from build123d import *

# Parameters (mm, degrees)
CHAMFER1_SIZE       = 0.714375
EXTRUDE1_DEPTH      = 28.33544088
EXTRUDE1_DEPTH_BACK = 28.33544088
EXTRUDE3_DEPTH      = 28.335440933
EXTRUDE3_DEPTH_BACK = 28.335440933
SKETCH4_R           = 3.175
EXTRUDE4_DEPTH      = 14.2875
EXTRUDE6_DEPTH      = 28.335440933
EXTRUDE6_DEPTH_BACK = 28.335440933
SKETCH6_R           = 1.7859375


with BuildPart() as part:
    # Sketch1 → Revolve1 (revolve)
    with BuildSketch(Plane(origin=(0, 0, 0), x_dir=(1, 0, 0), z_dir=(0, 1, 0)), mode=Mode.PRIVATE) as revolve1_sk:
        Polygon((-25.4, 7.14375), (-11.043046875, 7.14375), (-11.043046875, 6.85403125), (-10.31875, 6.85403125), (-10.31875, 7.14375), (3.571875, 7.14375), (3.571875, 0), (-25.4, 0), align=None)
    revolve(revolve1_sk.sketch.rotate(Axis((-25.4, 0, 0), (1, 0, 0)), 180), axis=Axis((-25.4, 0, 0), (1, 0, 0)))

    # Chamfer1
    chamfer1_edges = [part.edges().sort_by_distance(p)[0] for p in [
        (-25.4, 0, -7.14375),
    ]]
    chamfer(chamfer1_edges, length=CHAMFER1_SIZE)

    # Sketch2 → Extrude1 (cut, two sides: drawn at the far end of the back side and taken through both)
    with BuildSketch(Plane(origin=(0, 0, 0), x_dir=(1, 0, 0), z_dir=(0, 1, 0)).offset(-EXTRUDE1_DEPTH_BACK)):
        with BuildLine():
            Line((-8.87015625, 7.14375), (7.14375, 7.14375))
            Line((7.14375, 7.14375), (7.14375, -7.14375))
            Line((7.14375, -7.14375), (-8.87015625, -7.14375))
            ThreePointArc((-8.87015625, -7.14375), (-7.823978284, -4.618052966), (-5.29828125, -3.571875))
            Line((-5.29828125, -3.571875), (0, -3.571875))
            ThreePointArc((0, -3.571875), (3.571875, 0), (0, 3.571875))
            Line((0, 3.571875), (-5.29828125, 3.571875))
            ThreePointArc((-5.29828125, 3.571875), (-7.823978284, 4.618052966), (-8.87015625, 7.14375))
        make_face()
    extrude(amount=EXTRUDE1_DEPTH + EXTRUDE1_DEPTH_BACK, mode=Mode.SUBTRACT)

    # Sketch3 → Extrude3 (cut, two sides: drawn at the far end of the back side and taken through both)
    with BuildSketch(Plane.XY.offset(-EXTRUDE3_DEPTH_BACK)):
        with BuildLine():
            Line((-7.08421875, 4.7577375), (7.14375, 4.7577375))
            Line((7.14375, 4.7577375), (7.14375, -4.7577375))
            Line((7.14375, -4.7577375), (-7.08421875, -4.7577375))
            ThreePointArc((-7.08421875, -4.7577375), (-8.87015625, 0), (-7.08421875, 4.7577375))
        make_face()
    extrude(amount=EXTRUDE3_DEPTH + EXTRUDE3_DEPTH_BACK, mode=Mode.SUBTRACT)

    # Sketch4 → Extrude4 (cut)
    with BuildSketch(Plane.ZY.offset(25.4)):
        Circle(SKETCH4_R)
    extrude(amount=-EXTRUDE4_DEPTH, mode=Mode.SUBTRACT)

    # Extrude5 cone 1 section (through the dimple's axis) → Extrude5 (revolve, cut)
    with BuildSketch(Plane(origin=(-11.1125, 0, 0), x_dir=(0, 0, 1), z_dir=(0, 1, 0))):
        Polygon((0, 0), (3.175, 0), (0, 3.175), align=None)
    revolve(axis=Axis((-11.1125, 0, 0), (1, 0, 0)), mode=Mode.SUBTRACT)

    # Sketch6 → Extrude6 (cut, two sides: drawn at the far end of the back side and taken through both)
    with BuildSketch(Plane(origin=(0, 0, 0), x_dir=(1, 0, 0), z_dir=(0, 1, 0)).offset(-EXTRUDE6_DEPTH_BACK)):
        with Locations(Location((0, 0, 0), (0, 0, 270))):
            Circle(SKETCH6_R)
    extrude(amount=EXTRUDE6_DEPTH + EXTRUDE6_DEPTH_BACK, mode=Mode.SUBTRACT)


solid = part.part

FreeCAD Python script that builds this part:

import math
import FreeCAD as App
import Part
import Sketcher
from FreeCAD import Vector
Q = App.Units.Quantity


def edges_at(feature, points):
    """Names of the edges that pass closest to the given points."""
    edges = feature.Shape.Edges
    near = lambda p: min(range(len(edges)), key=lambda i: edges[i].distToShape(Part.Vertex(*p))[0])
    return sorted({f"Edge{near(p) + 1}" for p in points})

doc = App.newDocument("Part")
body = doc.addObject("PartDesign::Body", "Body")

# Sketch on XZ plane
sketch1 = doc.addObject("Sketcher::SketchObject", "Sketch")
body.addObject(sketch1)
sketch1.AttachmentSupport = (doc.XZ_Plane, [""])
sketch1.MapMode = "FlatFace"
sketch1.addGeometry(Part.LineSegment(Vector(-11.04, -7.14, 0), Vector(-25.4, -7.14, 0)), False)
sketch1.addGeometry(Part.LineSegment(Vector(-25.4, -7.14, 0), Vector(-25.4, 0, 0)), False)
sketch1.addGeometry(Part.LineSegment(Vector(-25.4, 0, 0), Vector(3.57, 0, 0)), False)
sketch1.addGeometry(Part.LineSegment(Vector(3.57, 0, 0), Vector(3.57, -7.14, 0)), False)
sketch1.addGeometry(Part.LineSegment(Vector(3.57, -7.14, 0), Vector(-10.32, -7.14, 0)), False)
sketch1.addGeometry(Part.LineSegment(Vector(-10.32, -7.14, 0), Vector(-10.32, -6.85, 0)), False)
sketch1.addGeometry(Part.LineSegment(Vector(-10.32, -6.85, 0), Vector(-11.04, -6.85, 0)), False)
sketch1.addGeometry(Part.LineSegment(Vector(-11.04, -6.85, 0), Vector(-11.04, -7.14, 0)), False)
sketch1.addConstraint(Sketcher.Constraint("Coincident", 0, 2, 1, 1))
sketch1.addConstraint(Sketcher.Constraint("Coincident", 1, 2, 2, 1))
sketch1.addConstraint(Sketcher.Constraint("Coincident", 2, 2, 3, 1))
sketch1.addConstraint(Sketcher.Constraint("Coincident", 3, 2, 4, 1))
sketch1.addConstraint(Sketcher.Constraint("Coincident", 4, 2, 5, 1))
sketch1.addConstraint(Sketcher.Constraint("Coincident", 5, 2, 6, 1))
sketch1.addConstraint(Sketcher.Constraint("Coincident", 6, 2, 7, 1))
sketch1.addConstraint(Sketcher.Constraint("Coincident", 7, 2, 0, 1))
sketch1.addConstraint(Sketcher.Constraint("Horizontal", 0))
sketch1.addConstraint(Sketcher.Constraint("Vertical", 1))
sketch1.addConstraint(Sketcher.Constraint("Horizontal", 2))
sketch1.addConstraint(Sketcher.Constraint("Vertical", 3))
sketch1.addConstraint(Sketcher.Constraint("Horizontal", 4))
sketch1.addConstraint(Sketcher.Constraint("Vertical", 5))
sketch1.addConstraint(Sketcher.Constraint("Horizontal", 6))
sketch1.addConstraint(Sketcher.Constraint("Vertical", 7))
sketch1.addConstraint(Sketcher.Constraint("PointOnObject", 1, 2, -1))
sketch1.addConstraint(Sketcher.Constraint("Horizontal", 0, 2, 3, 2))
sketch1.addConstraint(Sketcher.Constraint("DistanceX", 0, 2, -1, 1, Q("1 in")))
sketch1.addConstraint(Sketcher.Constraint("DistanceX", 2, 1, 2, 2, Q("1.140625 in")))
sketch1.addConstraint(Sketcher.Constraint("DistanceX", 4, 2, 4, 1, Q("0.546875 in")))
sketch1.addConstraint(Sketcher.Constraint("DistanceY", 1, 1, 1, 2, Q("0.28125 in")))
sketch1.addConstraint(Sketcher.Constraint("DistanceY", 5, 1, 5, 2, Q("0.289719 mm")))
sketch1.addConstraint(Sketcher.Constraint("DistanceX", 0, 2, 0, 1, Q("14.356953 mm")))
revolution = doc.addObject("PartDesign::Revolution", "Revolution")
body.addObject(revolution)
revolution.Profile = sketch1
revolution.ReferenceAxis = (sketch1, ["H_Axis"])
revolution.Angle = 360
doc.recompute()

chamfer = doc.addObject("PartDesign::Chamfer", "Chamfer")
body.addObject(chamfer)
chamfer.Base = (revolution, edges_at(revolution, [(-25.4, 0, -7.144)]))
chamfer.Size = 0.714375

# Sketch on XZ plane
sketch2 = doc.addObject("Sketcher::SketchObject", "Sketch001")
body.addObject(sketch2)
sketch2.AttachmentSupport = (doc.XZ_Plane, [""])
sketch2.MapMode = "FlatFace"
sketch2.addGeometry(Part.LineSegment(Vector(7.1, -7.1, 0), Vector(-8.9, -7.1, 0)), False)
sketch2.addGeometry(Part.ArcOfCircle(Part.Circle(Vector(-5.3, -7.1, 0), Vector(0, 0, 1), 3.6), math.radians(90), math.radians(180)), False)
sketch2.addGeometry(Part.LineSegment(Vector(-5.3, -3.6, 0), Vector(0, -3.6, 0)), False)
sketch2.addGeometry(Part.ArcOfCircle(Part.Circle(Vector(0, 0, 0), Vector(0, 0, 1), 3.6), math.radians(-90), math.radians(90)), False)
sketch2.addGeometry(Part.LineSegment(Vector(0, 3.6, 0), Vector(-5.3, 3.6, 0)), False)
sketch2.addGeometry(Part.ArcOfCircle(Part.Circle(Vector(-5.3, 7.1, 0), Vector(0, 0, 1), 3.6), math.radians(180), math.radians(270)), False)
sketch2.addGeometry(Part.LineSegment(Vector(-8.9, 7.1, 0), Vector(7.1, 7.1, 0)), False)
sketch2.addGeometry(Part.LineSegment(Vector(7.1, 7.1, 0), Vector(7.1, -7.1, 0)), False)
sketch2.addConstraint(Sketcher.Constraint("Coincident", 0, 2, 1, 2))
sketch2.addConstraint(Sketcher.Constraint("Tangent", 1, 1, 2, 1))
sketch2.addConstraint(Sketcher.Constraint("Tangent", 2, 2, 3, 1))
sketch2.addConstraint(Sketcher.Constraint("Tangent", 3, 2, 4, 1))
sketch2.addConstraint(Sketcher.Constraint("Tangent", 4, 2, 5, 2))
sketch2.addConstraint(Sketcher.Constraint("Coincident", 5, 1, 6, 1))
sketch2.addConstraint(Sketcher.Constraint("Coincident", 6, 2, 7, 1))
sketch2.addConstraint(Sketcher.Constraint("Coincident", 7, 2, 0, 1))
sketch2.addConstraint(Sketcher.Constraint("Horizontal", 0))
sketch2.addConstraint(Sketcher.Constraint("Horizontal", 2))
sketch2.addConstraint(Sketcher.Constraint("Horizontal", 4))
sketch2.addConstraint(Sketcher.Constraint("Horizontal", 6))
sketch2.addConstraint(Sketcher.Constraint("Vertical", 7))
sketch2.addConstraint(Sketcher.Constraint("Coincident", 3, 3, -1, 1))
sketch2.addConstraint(Sketcher.Constraint("Equal", 1, 3))
sketch2.addConstraint(Sketcher.Constraint("Equal", 3, 5))
sketch2.addConstraint(Sketcher.Constraint("Symmetric", 0, 2, 5, 1, -1))
sketch2.addConstraint(Sketcher.Constraint("Horizontal", 1, 3, 0, 2))
sketch2.addConstraint(Sketcher.Constraint("Radius", 1, Q("0.140625 in")))
sketch2.addConstraint(Sketcher.Constraint("DistanceX", -1, 1, 6, 2, Q("0.28125 in")))
sketch2.addConstraint(Sketcher.Constraint("DistanceX", 2, 1, 2, 2, Q("5.298281 mm")))
pocket1 = doc.addObject("PartDesign::Pocket", "Pocket")
body.addObject(pocket1)
pocket1.Profile = sketch2
pocket1.Type = "ThroughAll"
pocket1.Midplane = True

# Sketch on XY plane
sketch3 = doc.addObject("Sketcher::SketchObject", "Sketch002")
body.addObject(sketch3)
sketch3.AttachmentSupport = (doc.XY_Plane, [""])
sketch3.MapMode = "FlatFace"
sketch3.addGeometry(Part.LineSegment(Vector(7, 5, 0), Vector(-7, 5, 0)), False)
sketch3.addGeometry(Part.ArcOfCircle(Part.Circle(Vector(-2, 0, 0), Vector(0, 0, 1), 7), math.radians(139), math.radians(221)), False)
sketch3.addGeometry(Part.LineSegment(Vector(-7, -5, 0), Vector(7, -5, 0)), False)
sketch3.addGeometry(Part.LineSegment(Vector(7, -5, 0), Vector(7, 5, 0)), False)
sketch3.addConstraint(Sketcher.Constraint("Coincident", 0, 2, 1, 1))
sketch3.addConstraint(Sketcher.Constraint("Coincident", 1, 2, 2, 1))
sketch3.addConstraint(Sketcher.Constraint("Coincident", 2, 2, 3, 1))
sketch3.addConstraint(Sketcher.Constraint("Coincident", 3, 2, 0, 1))
sketch3.addConstraint(Sketcher.Constraint("Horizontal", 0))
sketch3.addConstraint(Sketcher.Constraint("Horizontal", 2))
sketch3.addConstraint(Sketcher.Constraint("Vertical", 3))
sketch3.addConstraint(Sketcher.Constraint("Symmetric", 0, 2, 1, 2, -1))
sketch3.addConstraint(Sketcher.Constraint("DistanceX", -1, 1, 2, 2, Q("0.28125 in")))
sketch3.addConstraint(Sketcher.Constraint("Radius", 1, Q("7.230275 mm")))
sketch3.addConstraint(Sketcher.Constraint("DistanceX", 0, 2, 0, 1, Q("14.227969 mm")))
sketch3.addConstraint(Sketcher.Constraint("DistanceY", 3, 1, 3, 2, Q("9.515475 mm")))
pocket2 = doc.addObject("PartDesign::Pocket", "Pocket001")
body.addObject(pocket2)
pocket2.Profile = sketch3
pocket2.Type = "ThroughAll"
pocket2.Midplane = True

# Sketch on YZ plane
sketch4 = doc.addObject("Sketcher::SketchObject", "Sketch003")
body.addObject(sketch4)
sketch4.AttachmentSupport = (doc.YZ_Plane, [""])
sketch4.MapMode = "FlatFace"
sketch4.AttachmentOffset = App.Placement(Vector(0, 0, -1 * 25.4), App.Rotation())
sketch4.addGeometry(Part.Circle(Vector(0, 0, 0), Vector(0, 0, 1), 3.2), False)
sketch4.addConstraint(Sketcher.Constraint("Coincident", 0, 3, -1, 1))
sketch4.addConstraint(Sketcher.Constraint("Diameter", 0, Q("0.25 in")))
pocket3 = doc.addObject("PartDesign::Pocket", "Pocket002")
body.addObject(pocket3)
pocket3.Profile = sketch4
pocket3.Length = Q("0.5625 in")
pocket3.Reversed = True

# Sketch on XZ plane
sketch5 = doc.addObject("Sketcher::SketchObject", "Sketch004")
body.addObject(sketch5)
sketch5.AttachmentSupport = (doc.XZ_Plane, [""])
sketch5.MapMode = "FlatFace"
sketch5.addGeometry(Part.LineSegment(Vector(-11.1, 0, 0), Vector(-11.1, 3.2, 0)), False)
sketch5.addGeometry(Part.LineSegment(Vector(-11.1, 3.2, 0), Vector(-7.9, 0, 0)), False)
sketch5.addGeometry(Part.LineSegment(Vector(-7.9, 0, 0), Vector(-11.1, 0, 0)), False)
sketch5.addConstraint(Sketcher.Constraint("Coincident", 0, 2, 1, 1))
sketch5.addConstraint(Sketcher.Constraint("Coincident", 1, 2, 2, 1))
sketch5.addConstraint(Sketcher.Constraint("Coincident", 2, 2, 0, 1))
sketch5.addConstraint(Sketcher.Constraint("Vertical", 0))
sketch5.addConstraint(Sketcher.Constraint("Horizontal", 2))
sketch5.addConstraint(Sketcher.Constraint("PointOnObject", 1, 2, -1))
sketch5.addConstraint(Sketcher.Constraint("Equal", 2, 0))
sketch5.addConstraint(Sketcher.Constraint("DistanceX", 2, 2, 2, 1, Q("0.125 in")))
sketch5.addConstraint(Sketcher.Constraint("DistanceX", 0, 2, -1, 1, Q("0.4375 in")))
groove = doc.addObject("PartDesign::Groove", "Groove")
body.addObject(groove)
groove.Profile = sketch5
groove.ReferenceAxis = (sketch5, ["H_Axis"])
groove.Angle = 360

# Sketch on XZ plane
sketch6 = doc.addObject("Sketcher::SketchObject", "Sketch005")
body.addObject(sketch6)
sketch6.AttachmentSupport = (doc.XZ_Plane, [""])
sketch6.MapMode = "FlatFace"
sketch6.addGeometry(Part.Circle(Vector(0, 0, 0), Vector(0, 0, 1), 1.8), False)
sketch6.addConstraint(Sketcher.Constraint("Coincident", 0, 3, -1, 1))
sketch6.addConstraint(Sketcher.Constraint("Diameter", 0, Q("0.140625 in")))
pocket4 = doc.addObject("PartDesign::Pocket", "Pocket003")
body.addObject(pocket4)
pocket4.Profile = sketch6
pocket4.Type = "ThroughAll"
pocket4.Midplane = True

doc.recompute()
